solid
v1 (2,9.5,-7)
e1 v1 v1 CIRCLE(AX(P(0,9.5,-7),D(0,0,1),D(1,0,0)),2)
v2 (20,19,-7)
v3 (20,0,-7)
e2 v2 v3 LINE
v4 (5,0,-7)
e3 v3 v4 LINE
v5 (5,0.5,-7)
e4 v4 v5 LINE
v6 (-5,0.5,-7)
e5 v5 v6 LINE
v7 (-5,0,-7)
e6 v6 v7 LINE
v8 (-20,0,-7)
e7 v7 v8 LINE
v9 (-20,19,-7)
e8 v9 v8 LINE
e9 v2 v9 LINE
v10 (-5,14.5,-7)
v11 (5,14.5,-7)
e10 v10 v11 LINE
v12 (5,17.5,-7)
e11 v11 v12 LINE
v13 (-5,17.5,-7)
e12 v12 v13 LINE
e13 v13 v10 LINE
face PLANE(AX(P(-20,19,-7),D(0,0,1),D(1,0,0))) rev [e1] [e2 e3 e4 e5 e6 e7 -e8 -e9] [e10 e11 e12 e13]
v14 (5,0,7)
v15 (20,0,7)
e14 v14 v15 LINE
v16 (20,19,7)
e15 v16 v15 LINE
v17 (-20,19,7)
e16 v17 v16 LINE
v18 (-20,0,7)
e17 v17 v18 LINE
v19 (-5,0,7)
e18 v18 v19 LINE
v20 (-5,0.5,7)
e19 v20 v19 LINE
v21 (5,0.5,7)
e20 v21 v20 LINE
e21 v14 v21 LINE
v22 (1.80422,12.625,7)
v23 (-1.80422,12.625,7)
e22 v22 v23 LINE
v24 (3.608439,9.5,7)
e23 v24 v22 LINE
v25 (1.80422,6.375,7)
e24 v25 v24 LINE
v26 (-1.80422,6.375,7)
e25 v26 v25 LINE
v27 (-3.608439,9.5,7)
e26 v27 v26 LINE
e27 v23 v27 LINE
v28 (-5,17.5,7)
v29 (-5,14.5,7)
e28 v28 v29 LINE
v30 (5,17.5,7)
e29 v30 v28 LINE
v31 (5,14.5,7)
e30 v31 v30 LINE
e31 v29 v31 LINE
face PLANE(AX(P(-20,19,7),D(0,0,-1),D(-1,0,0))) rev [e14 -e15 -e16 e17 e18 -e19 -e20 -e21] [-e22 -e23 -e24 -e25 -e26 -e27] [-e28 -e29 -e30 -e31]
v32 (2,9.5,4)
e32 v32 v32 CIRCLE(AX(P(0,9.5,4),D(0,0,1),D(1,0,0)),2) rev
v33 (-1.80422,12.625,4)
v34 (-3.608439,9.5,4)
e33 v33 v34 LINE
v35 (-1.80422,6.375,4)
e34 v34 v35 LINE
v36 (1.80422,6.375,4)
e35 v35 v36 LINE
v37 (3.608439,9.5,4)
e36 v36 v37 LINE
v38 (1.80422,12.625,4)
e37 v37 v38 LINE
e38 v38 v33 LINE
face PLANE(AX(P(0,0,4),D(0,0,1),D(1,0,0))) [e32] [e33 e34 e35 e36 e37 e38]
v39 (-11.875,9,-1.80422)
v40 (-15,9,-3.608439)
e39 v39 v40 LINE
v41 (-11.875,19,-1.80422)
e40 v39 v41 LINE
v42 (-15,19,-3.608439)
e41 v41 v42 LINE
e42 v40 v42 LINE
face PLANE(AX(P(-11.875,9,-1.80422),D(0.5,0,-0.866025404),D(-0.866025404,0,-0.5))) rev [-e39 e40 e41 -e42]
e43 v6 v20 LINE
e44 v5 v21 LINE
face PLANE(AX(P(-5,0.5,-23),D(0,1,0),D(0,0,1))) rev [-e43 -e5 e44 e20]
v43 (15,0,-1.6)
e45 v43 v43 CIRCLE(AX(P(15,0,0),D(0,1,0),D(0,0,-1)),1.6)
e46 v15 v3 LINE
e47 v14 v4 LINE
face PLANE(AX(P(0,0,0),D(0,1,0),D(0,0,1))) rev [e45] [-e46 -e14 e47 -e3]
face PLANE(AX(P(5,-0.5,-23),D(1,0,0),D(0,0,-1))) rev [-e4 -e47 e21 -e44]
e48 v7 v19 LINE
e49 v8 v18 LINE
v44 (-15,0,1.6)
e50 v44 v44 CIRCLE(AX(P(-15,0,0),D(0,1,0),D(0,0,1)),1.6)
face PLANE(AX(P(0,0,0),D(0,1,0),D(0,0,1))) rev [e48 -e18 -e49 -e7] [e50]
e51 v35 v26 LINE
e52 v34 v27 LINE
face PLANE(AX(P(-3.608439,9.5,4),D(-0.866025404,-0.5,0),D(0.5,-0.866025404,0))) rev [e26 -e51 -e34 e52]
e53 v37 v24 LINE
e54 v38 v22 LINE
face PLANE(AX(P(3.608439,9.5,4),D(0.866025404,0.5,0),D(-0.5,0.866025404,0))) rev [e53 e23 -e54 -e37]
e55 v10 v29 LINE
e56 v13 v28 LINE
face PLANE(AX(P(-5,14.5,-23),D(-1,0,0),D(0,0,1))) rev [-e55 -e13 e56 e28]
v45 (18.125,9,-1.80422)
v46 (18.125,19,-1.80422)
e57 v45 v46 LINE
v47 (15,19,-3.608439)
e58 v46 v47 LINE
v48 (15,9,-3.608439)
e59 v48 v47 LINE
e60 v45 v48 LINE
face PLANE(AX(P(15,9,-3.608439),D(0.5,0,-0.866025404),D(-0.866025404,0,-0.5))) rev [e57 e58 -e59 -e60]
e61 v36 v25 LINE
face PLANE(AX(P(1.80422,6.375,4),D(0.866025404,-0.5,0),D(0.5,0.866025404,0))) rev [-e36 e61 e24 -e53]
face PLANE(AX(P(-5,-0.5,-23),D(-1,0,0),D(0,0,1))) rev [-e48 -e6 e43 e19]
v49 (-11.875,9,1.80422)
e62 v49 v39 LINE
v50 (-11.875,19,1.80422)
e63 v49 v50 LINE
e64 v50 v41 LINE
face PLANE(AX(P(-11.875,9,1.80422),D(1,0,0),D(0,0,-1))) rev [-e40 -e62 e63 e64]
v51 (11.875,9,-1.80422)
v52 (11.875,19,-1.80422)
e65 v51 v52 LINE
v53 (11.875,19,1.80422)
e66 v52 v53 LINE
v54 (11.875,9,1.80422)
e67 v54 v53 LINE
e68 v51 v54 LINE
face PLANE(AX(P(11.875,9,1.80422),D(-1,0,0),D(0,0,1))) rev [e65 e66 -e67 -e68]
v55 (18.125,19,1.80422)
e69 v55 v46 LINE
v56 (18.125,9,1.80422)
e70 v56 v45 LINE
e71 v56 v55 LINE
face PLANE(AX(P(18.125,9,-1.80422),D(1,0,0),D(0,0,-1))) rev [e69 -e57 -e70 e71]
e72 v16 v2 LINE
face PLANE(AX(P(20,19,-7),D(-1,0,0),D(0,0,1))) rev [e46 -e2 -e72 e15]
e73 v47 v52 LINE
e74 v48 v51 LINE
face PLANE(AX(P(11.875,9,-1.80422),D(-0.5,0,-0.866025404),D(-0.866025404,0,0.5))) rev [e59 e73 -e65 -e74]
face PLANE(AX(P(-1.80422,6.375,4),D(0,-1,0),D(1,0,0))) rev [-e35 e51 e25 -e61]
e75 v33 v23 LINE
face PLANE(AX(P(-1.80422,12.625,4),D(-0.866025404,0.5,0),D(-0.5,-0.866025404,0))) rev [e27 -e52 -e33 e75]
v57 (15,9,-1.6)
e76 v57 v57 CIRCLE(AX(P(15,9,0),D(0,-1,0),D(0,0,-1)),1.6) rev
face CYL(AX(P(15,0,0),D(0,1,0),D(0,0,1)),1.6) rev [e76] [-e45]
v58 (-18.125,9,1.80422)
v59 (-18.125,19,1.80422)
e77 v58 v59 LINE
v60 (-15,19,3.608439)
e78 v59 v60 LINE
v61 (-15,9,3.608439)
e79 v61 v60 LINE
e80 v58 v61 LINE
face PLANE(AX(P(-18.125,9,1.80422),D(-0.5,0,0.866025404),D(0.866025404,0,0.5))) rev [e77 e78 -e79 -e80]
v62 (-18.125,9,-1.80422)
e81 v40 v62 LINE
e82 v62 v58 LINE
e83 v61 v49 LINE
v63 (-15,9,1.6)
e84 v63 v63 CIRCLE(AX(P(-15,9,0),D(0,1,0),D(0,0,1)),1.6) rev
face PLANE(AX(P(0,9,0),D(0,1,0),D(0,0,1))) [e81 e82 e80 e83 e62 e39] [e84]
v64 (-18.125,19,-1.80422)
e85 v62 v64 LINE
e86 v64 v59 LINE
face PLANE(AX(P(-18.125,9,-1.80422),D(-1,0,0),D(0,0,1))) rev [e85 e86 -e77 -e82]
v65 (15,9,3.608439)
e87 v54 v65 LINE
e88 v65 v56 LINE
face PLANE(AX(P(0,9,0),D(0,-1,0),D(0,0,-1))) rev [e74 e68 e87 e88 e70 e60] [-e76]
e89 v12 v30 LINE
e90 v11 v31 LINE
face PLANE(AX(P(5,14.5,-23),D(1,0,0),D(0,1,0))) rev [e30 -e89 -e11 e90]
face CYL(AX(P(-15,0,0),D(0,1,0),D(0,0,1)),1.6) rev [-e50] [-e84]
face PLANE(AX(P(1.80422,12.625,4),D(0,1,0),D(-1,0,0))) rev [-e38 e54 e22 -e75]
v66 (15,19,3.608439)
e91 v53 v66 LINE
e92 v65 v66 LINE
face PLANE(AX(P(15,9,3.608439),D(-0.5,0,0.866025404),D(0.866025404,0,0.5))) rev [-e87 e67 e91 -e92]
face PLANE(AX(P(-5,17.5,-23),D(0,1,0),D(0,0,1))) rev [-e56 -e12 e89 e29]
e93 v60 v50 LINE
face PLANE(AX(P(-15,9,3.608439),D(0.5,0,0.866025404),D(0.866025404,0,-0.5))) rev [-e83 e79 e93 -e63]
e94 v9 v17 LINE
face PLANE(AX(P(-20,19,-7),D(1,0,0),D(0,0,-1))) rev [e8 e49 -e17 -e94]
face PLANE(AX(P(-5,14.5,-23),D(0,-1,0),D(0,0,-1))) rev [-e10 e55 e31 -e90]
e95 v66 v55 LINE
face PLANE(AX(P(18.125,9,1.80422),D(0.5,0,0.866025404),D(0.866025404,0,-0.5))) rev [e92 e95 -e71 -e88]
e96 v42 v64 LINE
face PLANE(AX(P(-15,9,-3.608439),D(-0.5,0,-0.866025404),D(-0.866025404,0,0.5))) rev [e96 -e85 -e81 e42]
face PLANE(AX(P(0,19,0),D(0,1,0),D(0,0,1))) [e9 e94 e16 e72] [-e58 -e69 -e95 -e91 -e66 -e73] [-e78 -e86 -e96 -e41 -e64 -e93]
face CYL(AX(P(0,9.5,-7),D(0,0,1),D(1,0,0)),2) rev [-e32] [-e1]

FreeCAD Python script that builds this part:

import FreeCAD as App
import Part
import Sketcher
from FreeCAD import Vector
Q = App.Units.Quantity


def add_polygon(sketch, points):
    """Adds a closed chain of lines whose ends are joined by coincident constraints."""
    first, n = sketch.GeometryCount, len(points)
    for a, b in zip(points, points[1:] + points[:1]):
        sketch.addGeometry(Part.LineSegment(App.Vector(*a, 0), App.Vector(*b, 0)), False)
    for i in range(n):
        sketch.addConstraint(Sketcher.Constraint("Coincident", first + i, 2, first + (i + 1) % n, 1))

doc = App.newDocument("Part")
body = doc.addObject("PartDesign::Body", "Body")

sketch1 = doc.addObject("Sketcher::SketchObject", "Sketch")
body.addObject(sketch1)
sketch1.AttachmentSupport = (doc.XZ_Plane, [""])
sketch1.MapMode = "FlatFace"
add_polygon(sketch1, [(-20, -7), (-20, 7), (20, 7), (20, -7)])
sketch1.addConstraint(Sketcher.Constraint("Vertical", 0))
sketch1.addConstraint(Sketcher.Constraint("Horizontal", 1))
sketch1.addConstraint(Sketcher.Constraint("Vertical", 2))
sketch1.addConstraint(Sketcher.Constraint("Horizontal", 3))
sketch1.addConstraint(Sketcher.Constraint("Symmetric", 0, 2, 2, 2, -1, 1))
sketch1.addConstraint(Sketcher.Constraint("DistanceX", 1, 1, 1, 2, 40.0))
sketch1.addConstraint(Sketcher.Constraint("DistanceY", 0, 1, 0, 2, 14.0))
pad1 = doc.addObject("PartDesign::Pad", "Pad")
body.addObject(pad1)
pad1.Profile = sketch1
pad1.Length = 19
pad1.Reversed = True

sketch2 = doc.addObject("Sketcher::SketchObject", "Sketch001")
body.addObject(sketch2)
sketch2.AttachmentSupport = (doc.XY_Plane, [""])
sketch2.MapMode = "FlatFace"
sketch2.AttachmentOffset = App.Placement(Vector(0, 0, 7), App.Rotation())
add_polygon(sketch2, [(-5, 17.5), (-5, 14.5), (5, 14.5), (5, 17.5)])
add_polygon(sketch2, [(-5, 0.5), (-5, -0.5), (5, -0.5), (5, 0.5)])
sketch2.addConstraint(Sketcher.Constraint("Vertical", 0))
sketch2.addConstraint(Sketcher.Constraint("Horizontal", 1))
sketch2.addConstraint(Sketcher.Constraint("Vertical", 2))
sketch2.addConstraint(Sketcher.Constraint("Horizontal", 3))
sketch2.addConstraint(Sketcher.Constraint("Vertical", 4))
sketch2.addConstraint(Sketcher.Constraint("Horizontal", 5))
sketch2.addConstraint(Sketcher.Constraint("Vertical", 6))
sketch2.addConstraint(Sketcher.Constraint("Horizontal", 7))
sketch2.addConstraint(Sketcher.Constraint("Symmetric", 4, 2, 6, 2, -1, 1))
sketch2.addConstraint(Sketcher.Constraint("Vertical", 3, 2, 4, 2))
sketch2.addConstraint(Sketcher.Constraint("Vertical", 2, 2, 5, 2))
sketch2.addConstraint(Sketcher.Constraint("DistanceX", 1, 1, 1, 2, 10.0))
sketch2.addConstraint(Sketcher.Constraint("DistanceY", 0, 2, 0, 1, 3.0))
sketch2.addConstraint(Sketcher.Constraint("DistanceY", 4, 2, 4, 1, 1.0))
sketch2.addConstraint(Sketcher.Constraint("DistanceY", 4, 2, 0, 2, 15.0))
pocket1 = doc.addObject("PartDesign::Pocket", "Pocket")
body.addObject(pocket1)
pocket1.Profile = sketch2
pocket1.Length = 30

sketch3 = doc.addObject("Sketcher::SketchObject", "Sketch002")
body.addObject(sketch3)
sketch3.AttachmentSupport = (doc.XY_Plane, [""])
sketch3.MapMode = "FlatFace"
sketch3.AttachmentOffset = App.Placement(Vector(0, 0, 7), App.Rotation())
sketch3.addGeometry(Part.Circle(Vector(0, 9.5, 0), Vector(0, 0, 1), 2), False)
sketch3.addConstraint(Sketcher.Constraint("PointOnObject", 0, 3, -2))
sketch3.addConstraint(Sketcher.Constraint("Diameter", 0, 4.0))
sketch3.addConstraint(Sketcher.Constraint("DistanceY", -1, 1, 0, 3, 9.5))
pocket2 = doc.addObject("PartDesign::Pocket", "Pocket001")
body.addObject(pocket2)
pocket2.Profile = sketch3
pocket2.Type = "ThroughAll"

sketch4 = doc.addObject("Sketcher::SketchObject", "Sketch003")
body.addObject(sketch4)
sketch4.AttachmentSupport = (doc.XZ_Plane, [""])
sketch4.MapMode = "FlatFace"
sketch4.AttachmentOffset = App.Placement(Vector(0, 0, -19), App.Rotation())
sketch4.addGeometry(Part.Circle(Vector(-15, 0, 0), Vector(0, 0, 1), 1.6), False)
sketch4.addGeometry(Part.Circle(Vector(15, 0, 0), Vector(0, 0, 1), 1.6), False)
sketch4.addConstraint(Sketcher.Constraint("Equal", 0, 1))
sketch4.addConstraint(Sketcher.Constraint("Symmetric", 0, 3, 1, 3, -1, 1))
sketch4.addConstraint(Sketcher.Constraint("PointOnObject", 0, 3, -1))
sketch4.addConstraint(Sketcher.Constraint("Diameter", 0, 3.2))
sketch4.addConstraint(Sketcher.Constraint("DistanceX", 0, 3, -1, 1, 15.0))
pocket3 = doc.addObject("PartDesign::Pocket", "Pocket002")
body.addObject(pocket3)
pocket3.Profile = sketch4
pocket3.Type = "ThroughAll"
pocket3.Reversed = True

sketch5 = doc.addObject("Sketcher::SketchObject", "Sketch004")
body.addObject(sketch5)
sketch5.AttachmentSupport = (doc.XZ_Plane, [""])
sketch5.MapMode = "FlatFace"
sketch5.AttachmentOffset = App.Placement(Vector(0, 0, -19), App.Rotation())
add_polygon(sketch5, [(-15, -3.6), (-18.1, -1.8), (-18.1, 1.8), (-15, 3.6), (-11.9, 1.8), (-11.9, -1.8)])
add_polygon(sketch5, [(15, -3.6), (11.9, -1.8), (11.9, 1.8), (15, 3.6), (18.1, 1.8), (18.1, -1.8)])
sketch5.addConstraint(Sketcher.Constraint("Vertical", 1))
sketch5.addConstraint(Sketcher.Constraint("Vertical", 4))
sketch5.addConstraint(Sketcher.Constraint("Vertical", 7))
sketch5.addConstraint(Sketcher.Constraint("Vertical", 10))
sketch5.addConstraint(Sketcher.Constraint("Symmetric", 3, 2, 6, 2, -1, 1))
sketch5.addConstraint(Sketcher.Constraint("Symmetric", 5, 2, 8, 2, -1, 1))
sketch5.addConstraint(Sketcher.Constraint("Symmetric", 0, 2, 9, 2, -1, 1))
sketch5.addConstraint(Sketcher.Constraint("Symmetric", 2, 2, 11, 2, -1, 1))
sketch5.addConstraint(Sketcher.Constraint("Symmetric", 2, 2, 8, 2, -2))
sketch5.addConstraint(Sketcher.Constraint("Parallel", 0, 3))
sketch5.addConstraint(Sketcher.Constraint("Parallel", 2, 5))
sketch5.addConstraint(Sketcher.Constraint("Parallel", 5, 8))
sketch5.addConstraint(Sketcher.Constraint("Parallel", 8, 11))
sketch5.addConstraint(Sketcher.Constraint("Horizontal", 1, 2, 3, 2))
sketch5.addConstraint(Sketcher.Constraint("Horizontal", 0, 2, 4, 2))
sketch5.addConstraint(Sketcher.Constraint("Angle", 0, Q("150 deg")))
sketch5.addConstraint(Sketcher.Constraint("DistanceX", 2, 2, -1, 1, 15.0))
sketch5.addConstraint(Sketcher.Constraint("DistanceX", 1, 2, 3, 2, 6.25))
sketch5.addConstraint(Sketcher.Constraint("DistanceY", 1, 1, 1, 2, 3.608439))
pocket4 = doc.addObject("PartDesign::Pocket", "Pocket003")
body.addObject(pocket4)
pocket4.Profile = sketch5
pocket4.Length = 10
pocket4.Reversed = True

sketch6 = doc.addObject("Sketcher::SketchObject", "Sketch005")
body.addObject(sketch6)
sketch6.AttachmentSupport = (doc.XY_Plane, [""])
sketch6.MapMode = "FlatFace"
sketch6.AttachmentOffset = App.Placement(Vector(0, 0, 7), App.Rotation())
add_polygon(sketch6, [(1.8, 12.6), (-1.8, 12.6), (-3.6, 9.5), (-1.8, 6.4), (1.8, 6.4), (3.6, 9.5)])
sketch6.addConstraint(Sketcher.Constraint("Horizontal", 0))
sketch6.addConstraint(Sketcher.Constraint("Horizontal", 3))
sketch6.addConstraint(Sketcher.Constraint("Symmetric", 1, 2, 4, 2, -2))
sketch6.addConstraint(Sketcher.Constraint("Parallel", 1, 4))
sketch6.addConstraint(Sketcher.Constraint("Parallel", 2, 5))
sketch6.addConstraint(Sketcher.Constraint("Vertical", 0, 2, 2, 2))
sketch6.addConstraint(Sketcher.Constraint("Vertical", 3, 2, 5, 2))
sketch6.addConstraint(Sketcher.Constraint("Angle", 1, Q("-120 deg")))
sketch6.addConstraint(Sketcher.Constraint("DistanceY", -1, 1, 1, 2, 9.5))
sketch6.addConstraint(Sketcher.Constraint("DistanceY", 2, 2, 0, 2, 6.25))
sketch6.addConstraint(Sketcher.Constraint("DistanceX", 0, 2, 0, 1, 3.608439))
pocket5 = doc.addObject("PartDesign::Pocket", "Pocket004")
body.addObject(pocket5)
pocket5.Profile = sketch6
pocket5.Length = 3

doc.recompute()
